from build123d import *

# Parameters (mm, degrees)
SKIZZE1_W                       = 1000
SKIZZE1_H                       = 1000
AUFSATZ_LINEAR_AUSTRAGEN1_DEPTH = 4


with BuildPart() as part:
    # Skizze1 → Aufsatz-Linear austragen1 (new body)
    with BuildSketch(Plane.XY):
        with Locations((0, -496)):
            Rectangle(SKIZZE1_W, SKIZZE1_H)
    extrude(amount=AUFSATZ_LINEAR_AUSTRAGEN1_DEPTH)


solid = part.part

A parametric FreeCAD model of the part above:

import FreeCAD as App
import Part
import Sketcher


def add_polygon(sketch, points):
    """Adds a closed chain of lines whose ends are joined by coincident constraints."""
    first, n = sketch.GeometryCount, len(points)
    for a, b in zip(points, points[1:] + points[:1]):
        sketch.addGeometry(Part.LineSegment(App.Vector(*a, 0), App.Vector(*b, 0)), False)
    for i in range(n):
        sketch.addConstraint(Sketcher.Constraint("Coincident", first + i, 2, first + (i + 1) % n, 1))

doc = App.newDocument("Part")
body = doc.addObject("PartDesign::Body", "Body")

sketch1 = body.newObject("Sketcher::SketchObject", "Sketch")
sketch1.AttachmentSupport = (doc.getObject("XY_Plane"), [""])
sketch1.MapMode = "FlatFace"
add_polygon(sketch1, [(-500, 4), (-500, -996), (500, -996), (500, 4)])
sketch1.addConstraint([
    Sketcher.Constraint("Vertical", 0),
    Sketcher.Constraint("Horizontal", 1),
    Sketcher.Constraint("Vertical", 2),
    Sketcher.Constraint("Horizontal", 3),
    Sketcher.Constraint("Equal", 3, 0),
    Sketcher.Constraint("DistanceX", 1, 1, 1, 2, 1000.0),
    Sketcher.Constraint("DistanceX", 0, 2, -1, 1, 500.0),
    Sketcher.Constraint("DistanceY", 0, 2, -1, 1, 996.0),
])
pad1 = body.newObject("PartDesign::Pad", "Pad")
pad1.Profile = sketch1
pad1.Length = 4

doc.recompute()
